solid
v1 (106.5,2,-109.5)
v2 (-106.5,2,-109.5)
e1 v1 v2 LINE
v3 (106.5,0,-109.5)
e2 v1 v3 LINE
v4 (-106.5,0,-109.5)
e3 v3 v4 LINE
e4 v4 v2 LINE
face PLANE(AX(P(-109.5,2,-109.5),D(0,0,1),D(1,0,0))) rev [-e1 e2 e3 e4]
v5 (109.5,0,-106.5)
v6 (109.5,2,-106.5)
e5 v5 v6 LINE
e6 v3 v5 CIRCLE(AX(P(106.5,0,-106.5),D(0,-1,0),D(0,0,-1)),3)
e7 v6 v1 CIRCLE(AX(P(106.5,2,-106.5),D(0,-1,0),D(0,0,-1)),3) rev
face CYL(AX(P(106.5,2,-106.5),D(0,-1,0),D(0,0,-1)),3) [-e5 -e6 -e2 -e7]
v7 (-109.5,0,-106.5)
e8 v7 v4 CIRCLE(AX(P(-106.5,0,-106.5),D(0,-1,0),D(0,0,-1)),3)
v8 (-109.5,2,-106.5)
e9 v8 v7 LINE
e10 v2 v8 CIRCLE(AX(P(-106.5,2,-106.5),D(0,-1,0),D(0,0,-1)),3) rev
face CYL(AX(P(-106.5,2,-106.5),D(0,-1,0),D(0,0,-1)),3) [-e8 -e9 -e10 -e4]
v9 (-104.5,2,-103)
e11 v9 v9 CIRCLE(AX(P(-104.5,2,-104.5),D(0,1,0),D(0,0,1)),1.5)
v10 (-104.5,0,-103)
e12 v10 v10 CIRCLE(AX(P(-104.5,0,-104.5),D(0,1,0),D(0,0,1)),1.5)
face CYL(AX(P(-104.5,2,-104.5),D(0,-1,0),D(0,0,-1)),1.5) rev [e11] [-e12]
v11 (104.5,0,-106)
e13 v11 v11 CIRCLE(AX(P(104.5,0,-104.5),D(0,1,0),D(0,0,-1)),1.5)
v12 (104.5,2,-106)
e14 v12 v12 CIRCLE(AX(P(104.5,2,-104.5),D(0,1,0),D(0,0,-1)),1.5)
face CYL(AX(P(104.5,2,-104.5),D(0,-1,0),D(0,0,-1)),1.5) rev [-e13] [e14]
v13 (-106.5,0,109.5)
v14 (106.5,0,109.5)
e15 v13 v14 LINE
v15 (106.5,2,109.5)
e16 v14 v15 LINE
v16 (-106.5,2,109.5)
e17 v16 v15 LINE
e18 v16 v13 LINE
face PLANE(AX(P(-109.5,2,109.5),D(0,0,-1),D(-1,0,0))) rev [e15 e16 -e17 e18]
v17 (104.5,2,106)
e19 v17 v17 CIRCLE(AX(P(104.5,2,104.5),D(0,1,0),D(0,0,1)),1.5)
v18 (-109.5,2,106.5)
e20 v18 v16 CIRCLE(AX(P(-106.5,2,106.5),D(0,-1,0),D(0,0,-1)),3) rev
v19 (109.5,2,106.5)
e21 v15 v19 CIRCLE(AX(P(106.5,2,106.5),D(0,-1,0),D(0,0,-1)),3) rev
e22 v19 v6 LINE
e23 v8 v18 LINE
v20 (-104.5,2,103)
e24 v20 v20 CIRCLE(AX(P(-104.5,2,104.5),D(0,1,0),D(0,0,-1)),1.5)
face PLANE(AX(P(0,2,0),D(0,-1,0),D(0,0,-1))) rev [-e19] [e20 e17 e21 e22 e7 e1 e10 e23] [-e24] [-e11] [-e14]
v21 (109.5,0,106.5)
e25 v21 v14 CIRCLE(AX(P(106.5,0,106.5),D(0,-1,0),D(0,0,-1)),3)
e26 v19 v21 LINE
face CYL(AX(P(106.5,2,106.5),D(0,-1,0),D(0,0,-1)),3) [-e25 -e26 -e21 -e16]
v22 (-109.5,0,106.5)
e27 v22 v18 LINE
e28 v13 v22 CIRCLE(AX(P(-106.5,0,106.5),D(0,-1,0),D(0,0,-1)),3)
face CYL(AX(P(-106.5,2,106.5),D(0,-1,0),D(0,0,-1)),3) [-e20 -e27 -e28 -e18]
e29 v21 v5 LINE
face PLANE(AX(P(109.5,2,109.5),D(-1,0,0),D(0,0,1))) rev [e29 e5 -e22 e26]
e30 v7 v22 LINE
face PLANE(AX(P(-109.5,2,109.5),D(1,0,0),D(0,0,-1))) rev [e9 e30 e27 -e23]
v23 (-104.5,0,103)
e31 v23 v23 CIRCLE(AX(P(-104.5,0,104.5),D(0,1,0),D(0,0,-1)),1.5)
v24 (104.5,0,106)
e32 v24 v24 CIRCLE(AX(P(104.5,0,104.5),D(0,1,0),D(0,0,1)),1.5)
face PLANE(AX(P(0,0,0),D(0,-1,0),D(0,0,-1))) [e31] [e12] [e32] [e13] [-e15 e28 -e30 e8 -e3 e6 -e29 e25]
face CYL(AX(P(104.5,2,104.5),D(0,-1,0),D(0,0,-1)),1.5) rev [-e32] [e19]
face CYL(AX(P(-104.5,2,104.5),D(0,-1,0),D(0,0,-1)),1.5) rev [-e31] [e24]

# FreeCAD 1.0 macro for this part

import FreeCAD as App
import Part
import Sketcher

V = App.Vector


def edges_at(feature, points):
    """Names of the edges that pass closest to the given points."""
    edges = feature.Shape.Edges
    near = lambda p: min(range(len(edges)), key=lambda i: edges[i].distToShape(Part.Vertex(*p))[0])
    return sorted({f"Edge{near(p) + 1}" for p in points})


def add_polygon(sketch, points):
    """Adds a closed chain of lines whose ends are joined by coincident constraints."""
    first, n = sketch.GeometryCount, len(points)
    for a, b in zip(points, points[1:] + points[:1]):
        sketch.addGeometry(Part.LineSegment(App.Vector(*a, 0), App.Vector(*b, 0)), False)
    for i in range(n):
        sketch.addConstraint(Sketcher.Constraint("Coincident", first + i, 2, first + (i + 1) % n, 1))

doc = App.newDocument("Part")
params = doc.addObject("Spreadsheet::Sheet", "Params")
for row, (alias, value) in enumerate([
    ("sketch1_diameter", "3 mm"),
    ("sketch1_width", "219 mm"),
    ("pad1_length", "2 mm"),
    ("fillet_radius", "3 mm"),
], start=1):
    params.set(f"A{row}", alias)
    params.set(f"B{row}", "=" + value)
    params.setAlias(f"B{row}", alias)

body = doc.addObject("PartDesign::Body", "Body")

# Sketch on XZ plane
sketch1 = body.newObject("Sketcher::SketchObject", "Sketch")
sketch1.AttachmentSupport = (doc.getObject("XZ_Plane"), [""])
sketch1.MapMode = "FlatFace"
add_polygon(sketch1, [(-109.5, -109.5), (-109.5, 109.5), (109.5, 109.5), (109.5, -109.5)])  # lines 0-3
sketch1.addGeometry(Part.Circle(V(-104.5, 104.5, 0), V(0, 0, 1), 1.5), False)  # 4
sketch1.addGeometry(Part.Circle(V(104.5, 104.5, 0), V(0, 0, 1), 1.5), False)  # 5
sketch1.addGeometry(Part.Circle(V(-104.5, -104.5, 0), V(0, 0, 1), 1.5), False)  # 6
sketch1.addGeometry(Part.Circle(V(104.5, -104.5, 0), V(0, 0, 1), 1.5), False)  # 7
sketch1.addConstraint([
    Sketcher.Constraint("Vertical", 0),
    Sketcher.Constraint("Horizontal", 1),
    Sketcher.Constraint("Vertical", 2),
    Sketcher.Constraint("Horizontal", 3),
    Sketcher.Constraint("Equal", 4, 5),
    Sketcher.Constraint("Equal", 5, 6),
    Sketcher.Constraint("Equal", 6, 7),
    Sketcher.Constraint("Symmetric", 5, 3, 6, 3, -1, 1),
    Sketcher.Constraint("Symmetric", 4, 3, 7, 3, -1, 1),
    Sketcher.Constraint("Symmetric", 0, 2, 2, 2, -1, 1),
    Sketcher.Constraint("Symmetric", 4, 3, 5, 3, -2),
    Sketcher.Constraint("Equal", 3, 0),
    Sketcher.Constraint("Diameter", 4, 3.0),
    Sketcher.Constraint("DistanceX", 1, 1, 1, 2, 219.0),
    Sketcher.Constraint("DistanceX", 4, 3, 5, 3, 209.0),
    Sketcher.Constraint("DistanceY", 6, 3, 4, 3, 209.0),
])
sketch1.setExpression("Constraints[16]", "Params.sketch1_diameter")
sketch1.setExpression("Constraints[17]", "Params.sketch1_width")
pad1 = body.newObject("PartDesign::Pad", "Pad")
pad1.Profile = sketch1
pad1.setExpression("Length", "Params.pad1_length")
pad1.Reversed = True
doc.recompute()

fillet = body.newObject("PartDesign::Fillet", "Fillet")
fillet.Base = (pad1, edges_at(pad1, [
    (109.5, 1, 109.5),
    (-109.5, 1, 109.5),
    (-109.5, 1, -109.5),
    (109.5, 1, -109.5),
]))
fillet.setExpression("Radius", "Params.fillet_radius")

doc.recompute()
